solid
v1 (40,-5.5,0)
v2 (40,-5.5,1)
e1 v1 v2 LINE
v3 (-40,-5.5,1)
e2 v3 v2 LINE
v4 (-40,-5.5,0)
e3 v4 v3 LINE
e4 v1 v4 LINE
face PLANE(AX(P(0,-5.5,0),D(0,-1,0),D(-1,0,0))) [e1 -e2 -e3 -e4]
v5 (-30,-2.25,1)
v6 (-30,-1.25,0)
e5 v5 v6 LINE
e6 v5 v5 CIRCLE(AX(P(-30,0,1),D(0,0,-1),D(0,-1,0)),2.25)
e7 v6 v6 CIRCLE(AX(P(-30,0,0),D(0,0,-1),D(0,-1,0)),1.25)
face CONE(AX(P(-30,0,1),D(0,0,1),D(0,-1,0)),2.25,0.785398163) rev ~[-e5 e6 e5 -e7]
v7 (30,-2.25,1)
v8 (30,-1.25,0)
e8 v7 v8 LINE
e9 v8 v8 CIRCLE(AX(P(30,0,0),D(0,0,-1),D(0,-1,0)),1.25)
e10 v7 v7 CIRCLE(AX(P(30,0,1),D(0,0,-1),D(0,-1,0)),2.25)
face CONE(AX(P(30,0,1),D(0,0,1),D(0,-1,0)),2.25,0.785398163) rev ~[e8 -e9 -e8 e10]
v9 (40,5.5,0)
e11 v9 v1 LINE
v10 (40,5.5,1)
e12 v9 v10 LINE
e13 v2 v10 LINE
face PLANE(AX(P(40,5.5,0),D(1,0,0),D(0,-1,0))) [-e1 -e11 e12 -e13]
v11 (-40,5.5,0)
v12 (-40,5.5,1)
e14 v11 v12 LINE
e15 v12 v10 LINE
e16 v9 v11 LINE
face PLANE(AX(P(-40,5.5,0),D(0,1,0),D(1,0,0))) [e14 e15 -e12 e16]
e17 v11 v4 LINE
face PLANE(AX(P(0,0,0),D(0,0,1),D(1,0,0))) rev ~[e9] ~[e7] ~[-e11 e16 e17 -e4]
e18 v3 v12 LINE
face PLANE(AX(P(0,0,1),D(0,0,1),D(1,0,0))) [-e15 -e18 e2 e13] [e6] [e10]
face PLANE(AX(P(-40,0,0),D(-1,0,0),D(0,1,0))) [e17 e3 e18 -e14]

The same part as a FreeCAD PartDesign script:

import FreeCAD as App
import Part
import Sketcher
from FreeCAD import Vector

doc = App.newDocument("Part")
body = doc.addObject("PartDesign::Body", "Body")

sketch1 = body.newObject("Sketcher::SketchObject", "Sketch")
sketch1.AttachmentSupport = (doc.getObject("XY_Plane"), [""])
sketch1.MapMode = "FlatFace"
sketch1.addGeometry([
    Part.LineSegment(Vector(-40, 6, 0), Vector(-40, -6, 0)),
    Part.LineSegment(Vector(-40, -6, 0), Vector(40, -6, 0)),
    Part.LineSegment(Vector(40, -6, 0), Vector(40, 6, 0)),
    Part.LineSegment(Vector(40, 6, 0), Vector(-40, 6, 0)),
], False)
sketch1.addConstraint([
    Sketcher.Constraint("Coincident", 0, 2, 1, 1),
    Sketcher.Constraint("Coincident", 1, 2, 2, 1),
    Sketcher.Constraint("Coincident", 2, 2, 3, 1),
    Sketcher.Constraint("Coincident", 3, 2, 0, 1),
    Sketcher.Constraint("Vertical", 0),
    Sketcher.Constraint("Horizontal", 1),
    Sketcher.Constraint("Vertical", 2),
    Sketcher.Constraint("Horizontal", 3),
    Sketcher.Constraint("Symmetric", 0, 2, 2, 2, -1, 1),
    Sketcher.Constraint("DistanceX", 1, 1, 1, 2, 80.0),
    Sketcher.Constraint("DistanceY", 0, 2, 0, 1, 11.0),
])
pad1 = body.newObject("PartDesign::Pad", "Pad")
pad1.Profile = sketch1
pad1.Length = 1

sketch2 = body.newObject("Sketcher::SketchObject", "Sketch001")
sketch2.AttachmentSupport = (doc.getObject("XY_Plane"), [""])
sketch2.MapMode = "FlatFace"
sketch2.AttachmentOffset = App.Placement(Vector(0, 0, 1), App.Rotation())
sketch2.addGeometry([
    Part.Circle(Vector(-30, 0, 0), Vector(0, 0, 1), 1.2),
    Part.Circle(Vector(30, 0, 0), Vector(0, 0, 1), 1.2),
], False)
sketch2.addConstraint([
    Sketcher.Constraint("Equal", 0, 1),
    Sketcher.Constraint("Symmetric", 0, 3, 1, 3, -1, 1),
    Sketcher.Constraint("PointOnObject", 0, 3, -1),
    Sketcher.Constraint("Diameter", 0, 2.4),
    Sketcher.Constraint("DistanceX", 0, 3, -1, 1, 30.0),
])
doc.recompute()
hole = body.newObject("PartDesign::Hole", "Hole")
hole.Profile = sketch2
hole.ThreadType = "None"
hole.Diameter = 2.4
hole.DepthType = "ThroughAll"
hole.HoleCutType = "Countersink"
hole.HoleCutDiameter = 4.5
hole.HoleCutCountersinkAngle = 90

doc.recompute()
